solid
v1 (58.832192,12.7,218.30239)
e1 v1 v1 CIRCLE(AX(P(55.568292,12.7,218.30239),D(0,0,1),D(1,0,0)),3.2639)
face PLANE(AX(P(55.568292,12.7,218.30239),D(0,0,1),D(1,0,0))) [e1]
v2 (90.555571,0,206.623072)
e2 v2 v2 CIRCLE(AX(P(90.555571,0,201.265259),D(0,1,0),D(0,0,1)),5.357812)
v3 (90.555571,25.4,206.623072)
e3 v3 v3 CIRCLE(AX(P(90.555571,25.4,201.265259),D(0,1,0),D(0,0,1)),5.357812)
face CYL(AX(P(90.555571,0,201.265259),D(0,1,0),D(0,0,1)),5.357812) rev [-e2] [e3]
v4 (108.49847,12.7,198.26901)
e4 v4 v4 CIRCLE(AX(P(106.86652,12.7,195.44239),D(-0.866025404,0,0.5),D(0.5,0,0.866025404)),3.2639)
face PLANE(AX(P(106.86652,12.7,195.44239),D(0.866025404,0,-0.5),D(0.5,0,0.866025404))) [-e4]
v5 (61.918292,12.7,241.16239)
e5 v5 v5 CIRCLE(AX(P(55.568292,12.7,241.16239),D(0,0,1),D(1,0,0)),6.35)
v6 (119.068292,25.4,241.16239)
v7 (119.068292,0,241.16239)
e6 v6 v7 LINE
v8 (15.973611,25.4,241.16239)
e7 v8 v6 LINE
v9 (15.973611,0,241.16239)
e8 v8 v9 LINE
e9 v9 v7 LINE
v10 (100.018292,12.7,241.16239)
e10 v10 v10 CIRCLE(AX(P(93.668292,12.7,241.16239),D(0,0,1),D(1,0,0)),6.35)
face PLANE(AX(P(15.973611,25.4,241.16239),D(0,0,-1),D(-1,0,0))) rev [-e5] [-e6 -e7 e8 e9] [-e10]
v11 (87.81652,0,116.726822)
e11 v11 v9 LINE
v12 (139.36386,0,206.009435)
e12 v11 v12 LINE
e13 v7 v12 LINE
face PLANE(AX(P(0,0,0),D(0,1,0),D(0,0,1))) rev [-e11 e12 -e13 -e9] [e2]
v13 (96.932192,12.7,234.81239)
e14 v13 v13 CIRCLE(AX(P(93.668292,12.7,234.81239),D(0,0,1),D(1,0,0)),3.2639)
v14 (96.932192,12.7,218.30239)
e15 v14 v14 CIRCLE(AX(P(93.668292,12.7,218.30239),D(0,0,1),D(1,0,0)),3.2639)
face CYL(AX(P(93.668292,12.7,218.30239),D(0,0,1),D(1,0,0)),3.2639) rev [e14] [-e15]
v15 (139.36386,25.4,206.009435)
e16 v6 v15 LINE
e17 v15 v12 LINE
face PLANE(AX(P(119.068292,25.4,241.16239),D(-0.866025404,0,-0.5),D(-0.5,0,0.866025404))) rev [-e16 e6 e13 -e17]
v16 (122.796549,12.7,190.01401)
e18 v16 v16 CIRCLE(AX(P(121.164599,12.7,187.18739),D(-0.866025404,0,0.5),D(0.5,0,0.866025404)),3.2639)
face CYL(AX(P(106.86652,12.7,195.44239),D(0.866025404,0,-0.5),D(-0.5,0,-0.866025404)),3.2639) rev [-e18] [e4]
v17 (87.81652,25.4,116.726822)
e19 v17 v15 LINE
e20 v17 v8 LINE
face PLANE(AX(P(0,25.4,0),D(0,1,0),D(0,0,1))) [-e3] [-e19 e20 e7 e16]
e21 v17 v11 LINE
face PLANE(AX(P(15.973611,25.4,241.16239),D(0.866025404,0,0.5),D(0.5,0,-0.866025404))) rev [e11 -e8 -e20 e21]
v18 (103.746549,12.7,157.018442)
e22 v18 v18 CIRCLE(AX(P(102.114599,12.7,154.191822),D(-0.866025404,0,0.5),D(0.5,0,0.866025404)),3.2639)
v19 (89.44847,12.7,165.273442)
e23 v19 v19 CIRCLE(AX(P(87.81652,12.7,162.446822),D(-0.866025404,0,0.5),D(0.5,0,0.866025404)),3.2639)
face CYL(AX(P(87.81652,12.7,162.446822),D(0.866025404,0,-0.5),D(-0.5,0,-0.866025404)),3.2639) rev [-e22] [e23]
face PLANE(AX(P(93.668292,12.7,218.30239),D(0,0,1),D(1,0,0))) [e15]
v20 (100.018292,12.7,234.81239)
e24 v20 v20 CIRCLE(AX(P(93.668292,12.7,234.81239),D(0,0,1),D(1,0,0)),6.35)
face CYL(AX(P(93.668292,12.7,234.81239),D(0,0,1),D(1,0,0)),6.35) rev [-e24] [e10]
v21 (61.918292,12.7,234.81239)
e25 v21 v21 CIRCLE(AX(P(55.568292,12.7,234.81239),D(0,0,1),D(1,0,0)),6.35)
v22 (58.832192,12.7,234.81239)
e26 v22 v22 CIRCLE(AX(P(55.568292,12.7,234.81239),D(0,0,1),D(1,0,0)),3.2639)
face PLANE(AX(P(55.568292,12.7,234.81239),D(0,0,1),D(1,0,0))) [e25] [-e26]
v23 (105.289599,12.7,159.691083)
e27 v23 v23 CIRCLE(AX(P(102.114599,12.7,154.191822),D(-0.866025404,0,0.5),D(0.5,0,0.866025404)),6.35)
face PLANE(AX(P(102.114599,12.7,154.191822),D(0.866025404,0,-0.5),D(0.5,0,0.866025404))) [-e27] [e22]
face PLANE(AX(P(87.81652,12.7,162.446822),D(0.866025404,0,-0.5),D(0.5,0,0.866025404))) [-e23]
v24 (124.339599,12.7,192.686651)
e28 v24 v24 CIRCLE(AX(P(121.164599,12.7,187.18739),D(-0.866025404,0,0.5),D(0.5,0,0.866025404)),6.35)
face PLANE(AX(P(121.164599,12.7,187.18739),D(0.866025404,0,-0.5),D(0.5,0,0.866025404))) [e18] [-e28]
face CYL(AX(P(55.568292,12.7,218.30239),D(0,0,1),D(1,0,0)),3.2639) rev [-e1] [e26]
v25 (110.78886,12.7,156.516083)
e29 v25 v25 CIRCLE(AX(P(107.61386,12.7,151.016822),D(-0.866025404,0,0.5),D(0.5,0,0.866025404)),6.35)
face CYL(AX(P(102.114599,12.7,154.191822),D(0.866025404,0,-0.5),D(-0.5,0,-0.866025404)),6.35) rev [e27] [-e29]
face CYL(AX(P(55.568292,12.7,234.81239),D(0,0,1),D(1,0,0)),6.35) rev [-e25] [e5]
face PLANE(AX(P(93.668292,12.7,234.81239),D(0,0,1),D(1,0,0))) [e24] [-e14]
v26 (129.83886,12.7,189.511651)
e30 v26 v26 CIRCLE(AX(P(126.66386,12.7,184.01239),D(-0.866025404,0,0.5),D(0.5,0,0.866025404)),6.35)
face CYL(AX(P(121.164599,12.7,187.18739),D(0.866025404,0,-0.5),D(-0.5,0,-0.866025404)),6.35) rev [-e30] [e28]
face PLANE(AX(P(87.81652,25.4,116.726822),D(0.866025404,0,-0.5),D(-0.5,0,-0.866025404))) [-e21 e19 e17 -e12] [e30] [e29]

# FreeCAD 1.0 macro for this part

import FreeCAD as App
import Part
import Sketcher

V = App.Vector
Q = App.Units.Quantity


def add_polygon(sketch, points):
    """Adds a closed chain of lines whose ends are joined by coincident constraints."""
    first, n = sketch.GeometryCount, len(points)
    for a, b in zip(points, points[1:] + points[:1]):
        sketch.addGeometry(Part.LineSegment(App.Vector(*a, 0), App.Vector(*b, 0)), False)
    for i in range(n):
        sketch.addConstraint(Sketcher.Constraint("Coincident", first + i, 2, first + (i + 1) % n, 1))

doc = App.newDocument("Part")
body = doc.addObject("PartDesign::Body", "Body")

sketch1 = doc.addObject("Sketcher::SketchObject", "Sketch")
body.addObject(sketch1)
sketch1.AttachmentSupport = (doc.XZ_Plane, [""])
sketch1.MapMode = "FlatFace"
add_polygon(sketch1, [(119.068292, 241.16239), (129.216076, 223.585912), (51.895065, 178.944606), (15.973611, 241.16239)])
sketch1.addConstraint([
    Sketcher.Constraint("Horizontal", 3),
    Sketcher.Constraint("Perpendicular", 0, 1),
    Sketcher.Constraint("Perpendicular", 1, 2),
    Sketcher.Constraint("Angle", 0, Q("-60 deg")),
    Sketcher.Constraint("DistanceX", 3, 1, 3, 2, 103.094681),
    Sketcher.Constraint("Distance", 2, 71.842909),
    Sketcher.Constraint("DistanceX", -1, 1, 2, 2, 15.973611),
    Sketcher.Constraint("DistanceY", -1, 1, 2, 2, 241.16239),
])
pad1 = doc.addObject("PartDesign::Pad", "Pad")
body.addObject(pad1)
pad1.Profile = sketch1
pad1.Length = Q("1 in")
pad1.Reversed = True

sketch2 = doc.addObject("Sketcher::SketchObject", "Sketch001")
body.addObject(sketch2)
sketch2.AttachmentSupport = (doc.XY_Plane, [""])
sketch2.MapMode = "FlatFace"
sketch2.AttachmentOffset = App.Placement(V(0, 0, 241.16239), App.Rotation())
sketch2.addGeometry([
    Part.Circle(V(55.568292, 12.7, 0), V(0, 0, 1), 6.35),
    Part.Circle(V(93.668292, 12.7, 0), V(0, 0, 1), 6.35),
], False)
sketch2.addConstraint([
    Sketcher.Constraint("Equal", 0, 1),
    Sketcher.Constraint("Horizontal", 0, 3, 1, 3),
    Sketcher.Constraint("Diameter", 0, Q("0.5 in")),
    Sketcher.Constraint("DistanceY", -1, 1, 0, 3, Q("0.5 in")),
    Sketcher.Constraint("DistanceX", 0, 3, 1, 3, Q("1.5 in")),
    Sketcher.Constraint("DistanceX", -1, 1, 0, 3, 55.568292),
])
pocket1 = doc.addObject("PartDesign::Pocket", "Pocket")
body.addObject(pocket1)
pocket1.Profile = sketch2
pocket1.Length = Q("0.25 in")

sketch3 = doc.addObject("Sketcher::SketchObject", "Sketch002")
body.addObject(sketch3)
sketch3.AttachmentSupport = (doc.XY_Plane, [""])
sketch3.MapMode = "FlatFace"
sketch3.AttachmentOffset = App.Placement(V(0, 0, 234.81239), App.Rotation())
sketch3.addGeometry(Part.Circle(V(55.568292, 12.7, 0), V(0, 0, 1), 3.2639), False)
sketch3.addConstraint([
    Sketcher.Constraint("Diameter", 0, Q("0.257 in")),
    Sketcher.Constraint("DistanceY", -1, 1, 0, 3, Q("0.5 in")),
    Sketcher.Constraint("DistanceX", -1, 1, 0, 3, 55.568292),
])
pocket2 = doc.addObject("PartDesign::Pocket", "Pocket001")
body.addObject(pocket2)
pocket2.Profile = sketch3
pocket2.Length = Q("0.65 in")

sketch4 = doc.addObject("Sketcher::SketchObject", "Sketch003")
body.addObject(sketch4)
sketch4.AttachmentSupport = (doc.XY_Plane, [""])
sketch4.MapMode = "FlatFace"
sketch4.AttachmentOffset = App.Placement(V(0, 0, 234.81239), App.Rotation())
sketch4.addGeometry(Part.Circle(V(93.668292, 12.7, 0), V(0, 0, 1), 3.2639), False)
sketch4.addConstraint([
    Sketcher.Constraint("Diameter", 0, Q("0.257 in")),
    Sketcher.Constraint("DistanceY", -1, 1, 0, 3, Q("0.5 in")),
    Sketcher.Constraint("DistanceX", -1, 1, 0, 3, 93.668292),
])
pocket3 = doc.addObject("PartDesign::Pocket", "Pocket002")
body.addObject(pocket3)
pocket3.Profile = sketch4
pocket3.Length = Q("0.65 in")
doc.recompute()

datumplane = doc.addObject("PartDesign::Plane", "DatumPlane")
body.addObject(datumplane)
datumplane.Placement = App.Placement(V(-64.511521, 0, 111.737232), App.Rotation(V(-0.866025404, 0, -0.5), V(0, -1, 0), V(-0.5, 0, 0.866025404), "ZXY"))
mirrored = doc.addObject("PartDesign::Mirrored", "Mirrored")
body.addObject(mirrored)
mirrored.Originals = [pad1, pocket1, pocket2, pocket3]
mirrored.MirrorPlane = (datumplane, [""])
body.Tip = mirrored

sketch5 = doc.addObject("Sketcher::SketchObject", "Sketch004")
body.addObject(sketch5)
sketch5.AttachmentSupport = (doc.XZ_Plane, [""])
sketch5.MapMode = "FlatFace"
sketch5.AttachmentOffset = App.Placement(V(0, 0, -1 * 25.4), App.Rotation())
sketch5.addGeometry(Part.Circle(V(90.555571, 201.265259, 0), V(0, 0, 1), 5.357812), False)
sketch5.addConstraint([
    Sketcher.Constraint("Diameter", 0, Q("0.421875 in")),
    Sketcher.Constraint("DistanceX", -1, 1, 0, 3, 90.555571),
    Sketcher.Constraint("DistanceY", -1, 1, 0, 3, 201.265259),
])
pocket4 = doc.addObject("PartDesign::Pocket", "Pocket003")
body.addObject(pocket4)
pocket4.Profile = sketch5
pocket4.Type = "ThroughAll"
pocket4.Reversed = True

doc.recompute()
